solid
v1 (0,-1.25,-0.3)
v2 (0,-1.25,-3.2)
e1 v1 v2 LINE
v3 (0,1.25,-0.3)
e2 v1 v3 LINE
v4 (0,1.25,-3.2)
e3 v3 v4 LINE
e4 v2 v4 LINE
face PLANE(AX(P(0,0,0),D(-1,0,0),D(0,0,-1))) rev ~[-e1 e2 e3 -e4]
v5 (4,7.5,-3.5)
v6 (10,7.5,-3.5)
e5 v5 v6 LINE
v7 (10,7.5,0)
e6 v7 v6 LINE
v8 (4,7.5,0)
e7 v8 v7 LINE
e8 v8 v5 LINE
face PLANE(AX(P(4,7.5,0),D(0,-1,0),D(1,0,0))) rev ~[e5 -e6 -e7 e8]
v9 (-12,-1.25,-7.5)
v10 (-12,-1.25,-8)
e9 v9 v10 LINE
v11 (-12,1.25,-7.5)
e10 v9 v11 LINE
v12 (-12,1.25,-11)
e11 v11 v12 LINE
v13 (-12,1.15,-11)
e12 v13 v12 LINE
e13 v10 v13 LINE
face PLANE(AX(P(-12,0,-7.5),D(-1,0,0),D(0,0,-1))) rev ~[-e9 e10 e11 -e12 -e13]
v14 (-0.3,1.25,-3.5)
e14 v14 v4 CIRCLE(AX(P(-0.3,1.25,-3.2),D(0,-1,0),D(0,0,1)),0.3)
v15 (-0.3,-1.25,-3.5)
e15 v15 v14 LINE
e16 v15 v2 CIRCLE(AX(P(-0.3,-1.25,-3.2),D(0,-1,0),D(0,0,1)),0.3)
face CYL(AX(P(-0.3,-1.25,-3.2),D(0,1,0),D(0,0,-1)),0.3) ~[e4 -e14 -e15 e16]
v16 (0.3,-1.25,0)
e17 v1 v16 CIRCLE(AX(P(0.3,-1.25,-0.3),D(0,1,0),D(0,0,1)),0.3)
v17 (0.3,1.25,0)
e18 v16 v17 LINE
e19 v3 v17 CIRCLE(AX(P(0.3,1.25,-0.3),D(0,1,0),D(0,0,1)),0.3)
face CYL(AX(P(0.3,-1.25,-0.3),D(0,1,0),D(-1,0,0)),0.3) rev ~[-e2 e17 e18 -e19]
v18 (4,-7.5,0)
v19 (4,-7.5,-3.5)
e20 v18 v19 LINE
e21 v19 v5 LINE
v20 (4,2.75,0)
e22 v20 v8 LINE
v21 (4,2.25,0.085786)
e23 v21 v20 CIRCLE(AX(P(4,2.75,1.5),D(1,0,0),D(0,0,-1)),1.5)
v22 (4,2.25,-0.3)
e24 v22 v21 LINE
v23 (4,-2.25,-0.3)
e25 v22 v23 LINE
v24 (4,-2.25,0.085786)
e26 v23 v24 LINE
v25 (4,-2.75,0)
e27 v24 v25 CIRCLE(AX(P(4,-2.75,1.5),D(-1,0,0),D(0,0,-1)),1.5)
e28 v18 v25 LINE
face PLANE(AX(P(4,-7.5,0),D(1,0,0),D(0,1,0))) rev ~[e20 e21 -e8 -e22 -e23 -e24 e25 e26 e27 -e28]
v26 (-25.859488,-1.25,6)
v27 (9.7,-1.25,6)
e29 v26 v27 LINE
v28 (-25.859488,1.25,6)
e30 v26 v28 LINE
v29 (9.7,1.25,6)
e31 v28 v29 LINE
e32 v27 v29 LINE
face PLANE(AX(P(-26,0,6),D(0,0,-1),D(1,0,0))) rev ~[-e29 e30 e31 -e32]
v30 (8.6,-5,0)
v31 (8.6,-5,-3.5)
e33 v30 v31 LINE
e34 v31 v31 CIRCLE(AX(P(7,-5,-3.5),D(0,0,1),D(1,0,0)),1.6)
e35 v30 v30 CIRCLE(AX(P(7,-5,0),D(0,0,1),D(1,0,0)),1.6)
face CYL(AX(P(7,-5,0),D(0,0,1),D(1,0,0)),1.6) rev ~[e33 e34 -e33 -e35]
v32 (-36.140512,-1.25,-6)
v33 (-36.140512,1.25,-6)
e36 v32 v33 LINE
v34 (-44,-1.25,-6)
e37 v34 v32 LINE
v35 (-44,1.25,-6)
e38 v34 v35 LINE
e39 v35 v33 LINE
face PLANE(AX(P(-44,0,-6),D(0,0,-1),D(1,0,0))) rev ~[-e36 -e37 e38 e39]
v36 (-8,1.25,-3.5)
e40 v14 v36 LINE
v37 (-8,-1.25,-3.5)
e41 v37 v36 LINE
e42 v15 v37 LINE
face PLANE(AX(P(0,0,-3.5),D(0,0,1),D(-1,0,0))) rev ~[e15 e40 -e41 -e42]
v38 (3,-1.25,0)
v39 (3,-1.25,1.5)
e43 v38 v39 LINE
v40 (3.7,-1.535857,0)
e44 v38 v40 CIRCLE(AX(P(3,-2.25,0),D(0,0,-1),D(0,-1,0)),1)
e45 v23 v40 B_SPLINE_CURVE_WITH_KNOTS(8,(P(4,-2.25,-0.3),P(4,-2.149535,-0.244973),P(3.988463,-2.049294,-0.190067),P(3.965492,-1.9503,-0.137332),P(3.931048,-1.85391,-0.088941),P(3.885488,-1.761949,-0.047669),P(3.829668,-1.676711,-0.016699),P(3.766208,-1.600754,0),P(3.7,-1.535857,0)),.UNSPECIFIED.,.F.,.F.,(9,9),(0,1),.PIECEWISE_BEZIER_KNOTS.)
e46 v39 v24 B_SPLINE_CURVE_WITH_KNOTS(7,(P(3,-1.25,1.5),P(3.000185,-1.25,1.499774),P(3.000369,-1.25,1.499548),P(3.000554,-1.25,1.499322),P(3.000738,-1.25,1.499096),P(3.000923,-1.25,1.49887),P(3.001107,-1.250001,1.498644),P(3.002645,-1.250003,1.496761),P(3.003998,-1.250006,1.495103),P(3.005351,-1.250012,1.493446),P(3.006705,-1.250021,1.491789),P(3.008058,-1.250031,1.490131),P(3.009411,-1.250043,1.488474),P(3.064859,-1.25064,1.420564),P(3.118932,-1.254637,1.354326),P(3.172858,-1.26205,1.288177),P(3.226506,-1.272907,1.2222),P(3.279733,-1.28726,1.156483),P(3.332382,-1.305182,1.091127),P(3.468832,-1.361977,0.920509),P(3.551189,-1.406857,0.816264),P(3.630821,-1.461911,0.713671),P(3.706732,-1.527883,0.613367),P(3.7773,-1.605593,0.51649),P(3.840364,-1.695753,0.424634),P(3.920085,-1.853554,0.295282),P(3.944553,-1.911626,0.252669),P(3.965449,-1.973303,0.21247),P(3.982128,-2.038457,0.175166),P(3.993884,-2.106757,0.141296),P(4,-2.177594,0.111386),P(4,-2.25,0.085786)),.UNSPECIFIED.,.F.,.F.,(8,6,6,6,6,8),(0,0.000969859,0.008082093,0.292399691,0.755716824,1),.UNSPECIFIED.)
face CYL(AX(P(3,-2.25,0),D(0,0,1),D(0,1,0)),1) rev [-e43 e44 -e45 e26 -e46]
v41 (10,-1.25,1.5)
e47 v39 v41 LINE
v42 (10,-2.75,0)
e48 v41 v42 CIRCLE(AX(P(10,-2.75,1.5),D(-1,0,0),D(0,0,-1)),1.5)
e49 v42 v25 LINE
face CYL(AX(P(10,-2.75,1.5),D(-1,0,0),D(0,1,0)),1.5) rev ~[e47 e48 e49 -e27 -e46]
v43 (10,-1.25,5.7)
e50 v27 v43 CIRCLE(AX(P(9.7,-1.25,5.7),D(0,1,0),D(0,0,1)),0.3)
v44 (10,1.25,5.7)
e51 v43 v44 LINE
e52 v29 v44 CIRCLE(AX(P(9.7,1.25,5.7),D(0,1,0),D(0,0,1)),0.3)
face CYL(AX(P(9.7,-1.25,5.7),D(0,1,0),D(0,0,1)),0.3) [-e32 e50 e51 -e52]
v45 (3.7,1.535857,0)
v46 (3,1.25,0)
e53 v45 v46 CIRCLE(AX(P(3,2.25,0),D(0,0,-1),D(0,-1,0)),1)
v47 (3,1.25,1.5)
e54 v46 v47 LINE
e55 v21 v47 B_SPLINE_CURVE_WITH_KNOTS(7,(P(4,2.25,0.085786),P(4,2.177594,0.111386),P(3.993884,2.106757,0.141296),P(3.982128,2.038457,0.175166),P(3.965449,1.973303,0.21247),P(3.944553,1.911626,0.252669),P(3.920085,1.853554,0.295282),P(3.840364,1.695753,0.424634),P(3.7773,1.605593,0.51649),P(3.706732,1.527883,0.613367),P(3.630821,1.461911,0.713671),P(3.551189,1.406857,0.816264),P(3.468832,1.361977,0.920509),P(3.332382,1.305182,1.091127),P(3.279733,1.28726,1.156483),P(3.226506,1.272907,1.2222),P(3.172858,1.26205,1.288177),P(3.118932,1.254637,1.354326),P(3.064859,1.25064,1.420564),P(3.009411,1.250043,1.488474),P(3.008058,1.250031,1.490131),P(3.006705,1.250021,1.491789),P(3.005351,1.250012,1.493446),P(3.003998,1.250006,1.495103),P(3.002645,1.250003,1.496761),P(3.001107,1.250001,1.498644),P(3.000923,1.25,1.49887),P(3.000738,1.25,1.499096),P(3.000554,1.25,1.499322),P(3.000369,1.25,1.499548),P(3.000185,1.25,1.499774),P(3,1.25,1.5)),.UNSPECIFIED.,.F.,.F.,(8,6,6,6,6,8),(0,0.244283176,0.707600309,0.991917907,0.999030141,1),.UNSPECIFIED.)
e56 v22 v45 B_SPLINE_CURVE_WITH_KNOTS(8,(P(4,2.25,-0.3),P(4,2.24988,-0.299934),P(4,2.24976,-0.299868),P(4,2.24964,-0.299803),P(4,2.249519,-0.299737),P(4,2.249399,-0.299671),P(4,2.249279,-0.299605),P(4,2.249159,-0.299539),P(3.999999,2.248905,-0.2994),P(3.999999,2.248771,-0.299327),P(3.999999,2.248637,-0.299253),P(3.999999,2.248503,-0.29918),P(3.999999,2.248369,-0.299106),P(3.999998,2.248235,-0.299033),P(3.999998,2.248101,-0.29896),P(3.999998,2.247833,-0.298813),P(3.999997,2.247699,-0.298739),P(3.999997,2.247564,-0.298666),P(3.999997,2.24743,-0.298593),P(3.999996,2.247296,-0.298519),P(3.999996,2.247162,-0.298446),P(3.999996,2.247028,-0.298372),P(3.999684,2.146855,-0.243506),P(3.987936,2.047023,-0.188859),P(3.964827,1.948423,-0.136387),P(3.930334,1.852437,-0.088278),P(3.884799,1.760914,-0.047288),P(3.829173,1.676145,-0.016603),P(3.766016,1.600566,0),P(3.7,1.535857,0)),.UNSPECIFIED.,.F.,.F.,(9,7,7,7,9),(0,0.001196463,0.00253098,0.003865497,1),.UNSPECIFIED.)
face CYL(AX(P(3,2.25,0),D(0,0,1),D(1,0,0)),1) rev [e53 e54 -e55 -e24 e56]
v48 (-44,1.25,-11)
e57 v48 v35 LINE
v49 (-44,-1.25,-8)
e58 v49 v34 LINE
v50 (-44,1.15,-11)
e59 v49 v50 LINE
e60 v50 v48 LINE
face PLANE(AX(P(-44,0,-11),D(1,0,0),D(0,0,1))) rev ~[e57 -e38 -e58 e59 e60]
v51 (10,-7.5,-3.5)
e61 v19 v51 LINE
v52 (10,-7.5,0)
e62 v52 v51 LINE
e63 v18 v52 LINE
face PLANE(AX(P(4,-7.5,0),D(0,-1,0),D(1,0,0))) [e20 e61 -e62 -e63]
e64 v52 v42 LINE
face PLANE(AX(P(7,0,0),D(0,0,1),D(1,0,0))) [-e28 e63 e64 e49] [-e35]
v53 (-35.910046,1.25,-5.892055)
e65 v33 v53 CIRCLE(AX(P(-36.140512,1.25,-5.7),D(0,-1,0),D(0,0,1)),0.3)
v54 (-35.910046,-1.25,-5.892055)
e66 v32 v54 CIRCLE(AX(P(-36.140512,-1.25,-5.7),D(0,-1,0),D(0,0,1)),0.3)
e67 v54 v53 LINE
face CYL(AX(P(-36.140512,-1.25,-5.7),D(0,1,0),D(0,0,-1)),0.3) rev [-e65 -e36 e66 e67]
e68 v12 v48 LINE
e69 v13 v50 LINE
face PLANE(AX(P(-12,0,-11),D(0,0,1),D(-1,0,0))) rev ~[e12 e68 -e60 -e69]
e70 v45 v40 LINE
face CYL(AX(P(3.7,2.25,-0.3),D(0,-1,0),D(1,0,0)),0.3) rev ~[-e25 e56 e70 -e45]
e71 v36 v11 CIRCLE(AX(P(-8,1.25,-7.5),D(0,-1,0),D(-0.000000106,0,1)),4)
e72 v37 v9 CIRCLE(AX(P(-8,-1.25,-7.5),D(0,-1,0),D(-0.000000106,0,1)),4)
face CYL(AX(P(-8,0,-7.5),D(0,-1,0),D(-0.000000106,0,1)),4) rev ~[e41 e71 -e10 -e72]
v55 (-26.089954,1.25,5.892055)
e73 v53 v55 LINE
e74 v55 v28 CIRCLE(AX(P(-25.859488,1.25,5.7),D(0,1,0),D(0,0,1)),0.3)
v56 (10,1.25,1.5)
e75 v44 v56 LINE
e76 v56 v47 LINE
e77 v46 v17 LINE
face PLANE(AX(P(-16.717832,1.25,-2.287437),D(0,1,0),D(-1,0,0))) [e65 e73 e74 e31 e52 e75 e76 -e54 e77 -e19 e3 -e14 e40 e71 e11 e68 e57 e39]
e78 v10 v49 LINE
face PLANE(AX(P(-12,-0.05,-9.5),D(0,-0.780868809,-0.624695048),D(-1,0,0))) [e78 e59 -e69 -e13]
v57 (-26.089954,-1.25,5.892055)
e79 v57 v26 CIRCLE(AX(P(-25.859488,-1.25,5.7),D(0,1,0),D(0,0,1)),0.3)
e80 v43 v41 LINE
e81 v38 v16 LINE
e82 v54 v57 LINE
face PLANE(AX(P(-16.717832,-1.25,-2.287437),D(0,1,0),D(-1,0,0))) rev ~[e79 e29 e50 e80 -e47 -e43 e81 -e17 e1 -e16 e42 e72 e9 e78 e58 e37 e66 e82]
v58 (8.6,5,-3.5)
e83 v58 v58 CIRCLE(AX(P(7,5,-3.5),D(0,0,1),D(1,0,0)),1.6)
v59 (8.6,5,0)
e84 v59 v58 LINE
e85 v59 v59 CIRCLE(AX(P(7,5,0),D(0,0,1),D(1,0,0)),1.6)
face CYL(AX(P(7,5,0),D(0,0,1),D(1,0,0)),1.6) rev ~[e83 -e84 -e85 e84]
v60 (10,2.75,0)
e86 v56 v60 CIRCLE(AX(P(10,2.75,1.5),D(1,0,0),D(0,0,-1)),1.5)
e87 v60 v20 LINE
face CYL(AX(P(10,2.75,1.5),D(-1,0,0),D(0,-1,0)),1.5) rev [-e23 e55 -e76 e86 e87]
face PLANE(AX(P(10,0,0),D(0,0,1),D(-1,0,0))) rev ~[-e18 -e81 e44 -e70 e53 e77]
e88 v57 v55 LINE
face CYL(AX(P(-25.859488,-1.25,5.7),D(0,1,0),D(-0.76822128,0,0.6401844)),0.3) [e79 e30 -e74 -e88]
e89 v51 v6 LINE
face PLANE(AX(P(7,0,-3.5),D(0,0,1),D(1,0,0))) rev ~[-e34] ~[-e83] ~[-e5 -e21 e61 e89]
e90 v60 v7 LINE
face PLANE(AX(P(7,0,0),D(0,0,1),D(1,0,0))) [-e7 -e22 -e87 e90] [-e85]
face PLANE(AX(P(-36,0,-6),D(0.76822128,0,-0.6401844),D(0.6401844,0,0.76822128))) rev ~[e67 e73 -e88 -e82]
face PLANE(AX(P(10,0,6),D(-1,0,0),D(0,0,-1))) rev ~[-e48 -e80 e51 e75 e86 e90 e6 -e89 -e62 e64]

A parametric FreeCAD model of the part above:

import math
import FreeCAD as App
import Part
import Sketcher

V = App.Vector
Q = App.Units.Quantity


def edges_at(feature, points):
    """Names of the edges that pass closest to the given points."""
    edges = feature.Shape.Edges
    near = lambda p: min(range(len(edges)), key=lambda i: edges[i].distToShape(Part.Vertex(*p))[0])
    return sorted({f"Edge{near(p) + 1}" for p in points})

doc = App.newDocument("Part")
body = doc.addObject("PartDesign::Body", "Body")

# Sketch on XY plane
sketch1 = doc.addObject("Sketcher::SketchObject", "Sketch")
body.addObject(sketch1)
sketch1.AttachmentSupport = (doc.XY_Plane, [""])
sketch1.MapMode = "FlatFace"
sketch1.addGeometry([
    Part.LineSegment(V(4, 7.5, 0), V(4, -7.5, 0)),  # 0
    Part.LineSegment(V(4, -7.5, 0), V(10, -7.5, 0)),  # 1
    Part.LineSegment(V(10, -7.5, 0), V(10, 7.5, 0)),  # 2
    Part.LineSegment(V(10, 7.5, 0), V(4, 7.5, 0)),  # 3
    Part.Circle(V(7, -5, 0), V(0, 0, 1), 1.6),  # 4
    Part.Circle(V(7, 5, 0), V(0, 0, 1), 1.6),  # 5
], False)
sketch1.addConstraint([
    Sketcher.Constraint("Coincident", 0, 2, 1, 1),
    Sketcher.Constraint("Coincident", 1, 2, 2, 1),
    Sketcher.Constraint("Coincident", 2, 2, 3, 1),
    Sketcher.Constraint("Coincident", 3, 2, 0, 1),
    Sketcher.Constraint("Vertical", 0),
    Sketcher.Constraint("Horizontal", 1),
    Sketcher.Constraint("Vertical", 2),
    Sketcher.Constraint("Horizontal", 3),
    Sketcher.Constraint("Equal", 4, 5),
    Sketcher.Constraint("Symmetric", 4, 3, 5, 3, -1),
    Sketcher.Constraint("Diameter", 4, Q("3.2 mm")),
    Sketcher.Constraint("DistanceX", 1, 1, 1, 2, Q("6 mm")),
    Sketcher.Constraint("DistanceY", 0, 2, 0, 1, Q("15 mm")),
    Sketcher.Constraint("DistanceX", -1, 1, 4, 3, Q("7 mm")),
    Sketcher.Constraint("DistanceY", 4, 3, -1, 1, Q("5 mm")),
    Sketcher.Constraint("DistanceX", -1, 1, 0, 2, Q("4 mm")),
    Sketcher.Constraint("DistanceY", 0, 2, -1, 1, Q("7.5 mm")),
])
pad1 = doc.addObject("PartDesign::Pad", "Pad")
body.addObject(pad1)
pad1.Profile = sketch1
pad1.Length = 3.5
pad1.Reversed = True

# Sketch on XZ plane
sketch2 = doc.addObject("Sketcher::SketchObject", "Sketch001")
body.addObject(sketch2)
sketch2.AttachmentSupport = (doc.XZ_Plane, [""])
sketch2.MapMode = "FlatFace"
sketch2.addGeometry([
    Part.LineSegment(V(0, 0, 0), V(10, 0, 0)),  # 0
    Part.LineSegment(V(10, 0, 0), V(10, 6, 0)),  # 1
    Part.LineSegment(V(10, 6, 0), V(-26, 6, 0)),  # 2
    Part.LineSegment(V(-26, 6, 0), V(-36, -6, 0)),  # 3
    Part.LineSegment(V(-36, -6, 0), V(-44, -6, 0)),  # 4
    Part.LineSegment(V(-44, -6, 0), V(-44, -11, 0)),  # 5
    Part.LineSegment(V(-44, -11, 0), V(-12, -11, 0)),  # 6
    Part.LineSegment(V(-12, -11, 0), V(-12, -7.5, 0)),  # 7
    Part.ArcOfCircle(Part.Circle(V(-8, -7.5, 0), V(0, 0, 1), 4), math.radians(90.000006), math.radians(179.999994)),  # 8
    Part.LineSegment(V(-8, -3.5, 0), V(0, -3.5, 0)),  # 9
    Part.LineSegment(V(0, -3.5, 0), V(0, 0, 0)),  # 10
], False)
sketch2.addConstraint([
    Sketcher.Constraint("Coincident", 0, 2, 1, 1),
    Sketcher.Constraint("Coincident", 1, 2, 2, 1),
    Sketcher.Constraint("Coincident", 2, 2, 3, 1),
    Sketcher.Constraint("Coincident", 3, 2, 4, 1),
    Sketcher.Constraint("Coincident", 4, 2, 5, 1),
    Sketcher.Constraint("Coincident", 5, 2, 6, 1),
    Sketcher.Constraint("Coincident", 6, 2, 7, 1),
    Sketcher.Constraint("Tangent", 7, 2, 8, 2),
    Sketcher.Constraint("Tangent", 8, 1, 9, 1),
    Sketcher.Constraint("Coincident", 9, 2, 10, 1),
    Sketcher.Constraint("Coincident", 10, 2, 0, 1),
    Sketcher.Constraint("Horizontal", 0),
    Sketcher.Constraint("Vertical", 1),
    Sketcher.Constraint("Horizontal", 2),
    Sketcher.Constraint("Horizontal", 4),
    Sketcher.Constraint("Vertical", 5),
    Sketcher.Constraint("Horizontal", 6),
    Sketcher.Constraint("Vertical", 7),
    Sketcher.Constraint("Horizontal", 9),
    Sketcher.Constraint("Vertical", 10),
    Sketcher.Constraint("Coincident", 10, 2, -1, 1),
    Sketcher.Constraint("Equal", 4, 9),
    Sketcher.Constraint("Equal", 7, 10),
    Sketcher.Constraint("Radius", 8, Q("4 mm")),
    Sketcher.Constraint("DistanceX", 0, 1, 0, 2, Q("10 mm")),
    Sketcher.Constraint("DistanceX", 2, 2, 2, 1, Q("36 mm")),
    Sketcher.Constraint("DistanceX", 4, 2, 4, 1, Q("8 mm")),
    Sketcher.Constraint("DistanceX", 6, 1, 6, 2, Q("32 mm")),
    Sketcher.Constraint("DistanceY", 1, 1, 1, 2, Q("6 mm")),
    Sketcher.Constraint("DistanceY", 5, 2, 5, 1, Q("5 mm")),
    Sketcher.Constraint("DistanceY", 7, 1, 7, 2, Q("3.5 mm")),
])
pad2 = doc.addObject("PartDesign::Pad", "Pad001")
body.addObject(pad2)
pad2.Profile = sketch2
pad2.Type = "TwoLengths"
pad2.Length = 1.25
pad2.Length2 = 1.25
doc.recompute()

chamfer = doc.addObject("PartDesign::Chamfer", "Chamfer")
body.addObject(chamfer)
chamfer.Base = (pad2, edges_at(pad2, [(-28, -1.25, -11)]))
chamfer.ChamferType = "Two distances"
chamfer.Size = 3
chamfer.Size2 = 2.4
doc.recompute()

fillet = doc.addObject("PartDesign::Fillet", "Fillet")
body.addObject(fillet)
fillet.Base = (chamfer, edges_at(chamfer, [
    (-36, 0, -6),
    (-26, 0, 6),
    (0, 0, -3.5),
    (10, 0, 6),
    (0, 0, 0),
]))
fillet.Radius = 0.3
doc.recompute()

fillet2 = doc.addObject("PartDesign::Fillet", "Fillet001")
body.addObject(fillet2)
fillet2.Base = (fillet, edges_at(fillet, [(7, 1.25, 0), (7, -1.25, 0)]))
fillet2.Radius = 1.5
doc.recompute()

fillet3 = doc.addObject("PartDesign::Fillet", "Fillet002")
body.addObject(fillet3)
fillet3.Base = (fillet2, edges_at(fillet2, [(4, 1.25, 0.75), (4, -1.25, 0.75)]))
fillet3.Radius = 1
doc.recompute()

fillet4 = doc.addObject("PartDesign::Fillet", "Fillet003")
body.addObject(fillet4)
fillet4.Base = (fillet3, edges_at(fillet3, [(4, 0, 0)]))
fillet4.Radius = 0.3

doc.recompute()
